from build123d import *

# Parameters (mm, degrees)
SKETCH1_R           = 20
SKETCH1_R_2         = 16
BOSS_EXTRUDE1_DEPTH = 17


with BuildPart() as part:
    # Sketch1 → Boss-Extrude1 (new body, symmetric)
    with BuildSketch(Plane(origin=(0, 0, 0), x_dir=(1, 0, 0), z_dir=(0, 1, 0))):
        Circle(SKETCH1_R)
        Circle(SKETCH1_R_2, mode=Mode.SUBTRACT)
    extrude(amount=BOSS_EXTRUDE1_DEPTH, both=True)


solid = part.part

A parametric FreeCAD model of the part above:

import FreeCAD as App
import Part
import Sketcher
from FreeCAD import Vector

doc = App.newDocument("Part")
body = doc.addObject("PartDesign::Body", "Body")

sketch1 = body.newObject("Sketcher::SketchObject", "Sketch")
sketch1.AttachmentSupport = (doc.getObject("XZ_Plane"), [""])
sketch1.MapMode = "FlatFace"
sketch1.addGeometry(Part.Circle(Vector(0, 0, 0), Vector(0, 0, 1), 20), False)
sketch1.addGeometry(Part.Circle(Vector(0, 0, 0), Vector(0, 0, 1), 16), False)
sketch1.addConstraint(Sketcher.Constraint("Coincident", 0, 3, -1, 1))
sketch1.addConstraint(Sketcher.Constraint("Coincident", 1, 3, -1, 1))
sketch1.addConstraint(Sketcher.Constraint("Diameter", 0, 40.0))
sketch1.addConstraint(Sketcher.Constraint("Diameter", 1, 32.0))
pad1 = body.newObject("PartDesign::Pad", "Pad")
pad1.Profile = sketch1
pad1.Length = 34
pad1.Midplane = True

doc.recompute()
